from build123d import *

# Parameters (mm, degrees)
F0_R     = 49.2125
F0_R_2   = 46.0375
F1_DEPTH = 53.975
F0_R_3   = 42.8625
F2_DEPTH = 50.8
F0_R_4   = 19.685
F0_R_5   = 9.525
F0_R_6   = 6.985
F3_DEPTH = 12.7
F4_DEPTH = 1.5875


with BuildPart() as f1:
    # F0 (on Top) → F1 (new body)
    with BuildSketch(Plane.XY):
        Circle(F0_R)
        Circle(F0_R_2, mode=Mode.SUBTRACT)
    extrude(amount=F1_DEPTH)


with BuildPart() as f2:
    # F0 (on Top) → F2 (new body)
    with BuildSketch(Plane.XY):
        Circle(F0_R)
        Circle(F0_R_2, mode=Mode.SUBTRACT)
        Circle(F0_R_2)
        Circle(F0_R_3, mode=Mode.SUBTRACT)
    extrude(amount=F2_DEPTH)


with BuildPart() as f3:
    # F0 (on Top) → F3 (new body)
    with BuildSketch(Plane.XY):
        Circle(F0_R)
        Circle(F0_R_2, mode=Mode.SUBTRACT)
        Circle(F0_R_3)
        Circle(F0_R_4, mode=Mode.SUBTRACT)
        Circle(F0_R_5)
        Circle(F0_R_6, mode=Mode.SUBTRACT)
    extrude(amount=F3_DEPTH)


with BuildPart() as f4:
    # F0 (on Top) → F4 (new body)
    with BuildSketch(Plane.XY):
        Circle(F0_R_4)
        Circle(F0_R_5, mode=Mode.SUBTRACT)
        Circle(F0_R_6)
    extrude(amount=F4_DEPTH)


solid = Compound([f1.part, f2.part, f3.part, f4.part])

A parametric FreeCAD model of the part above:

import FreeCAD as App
import Part
import Sketcher
Q = App.Units.Quantity

doc = App.newDocument("Part")
body = doc.addObject("PartDesign::Body", "Body")

sketch1 = body.newObject("Sketcher::SketchObject", "Sketch")
sketch1.AttachmentSupport = (doc.getObject("XY_Plane"), [""])
sketch1.MapMode = "FlatFace"
sketch1.addGeometry([
    Part.Circle(App.Vector(0, 0, 0), App.Vector(0, 0, 1), 49),
    Part.Circle(App.Vector(0, 0, 0), App.Vector(0, 0, 1), 46),
], False)
sketch1.addConstraint([
    Sketcher.Constraint("Coincident", 0, 3, -1, 1),
    Sketcher.Constraint("Coincident", 1, 3, -1, 1),
    Sketcher.Constraint("Diameter", 0, Q("3.875 in")),
    Sketcher.Constraint("Diameter", 1, Q("3.625 in")),
])
pad1 = body.newObject("PartDesign::Pad", "Pad")
pad1.Profile = sketch1
pad1.Length = Q("2.125 in")
body2 = doc.addObject("PartDesign::Body", "Body001")

sketch2 = body2.newObject("Sketcher::SketchObject", "Sketch001")
sketch2.AttachmentSupport = (doc.getObject("XY_Plane001"), [""])
sketch2.MapMode = "FlatFace"
sketch2.addGeometry([
    Part.Circle(App.Vector(0, 0, 0), App.Vector(0, 0, 1), 49),
    Part.Circle(App.Vector(0, 0, 0), App.Vector(0, 0, 1), 43),
], False)
sketch2.addConstraint([
    Sketcher.Constraint("Coincident", 0, 3, -1, 1),
    Sketcher.Constraint("Coincident", 1, 3, -1, 1),
    Sketcher.Constraint("Diameter", 0, Q("3.875 in")),
    Sketcher.Constraint("Diameter", 1, Q("3.375 in")),
])
pad2 = body2.newObject("PartDesign::Pad", "Pad001")
pad2.Profile = sketch2
pad2.Length = Q("2 in")
body3 = doc.addObject("PartDesign::Body", "Body002")
body3.AllowCompound = True

sketch3 = body3.newObject("Sketcher::SketchObject", "Sketch002")
sketch3.AttachmentSupport = (doc.getObject("XY_Plane002"), [""])
sketch3.MapMode = "FlatFace"
sketch3.addGeometry([
    Part.Circle(App.Vector(0, 0, 0), App.Vector(0, 0, 1), 49),
    Part.Circle(App.Vector(0, 0, 0), App.Vector(0, 0, 1), 46),
    Part.Circle(App.Vector(0, 0, 0), App.Vector(0, 0, 1), 43),
    Part.Circle(App.Vector(0, 0, 0), App.Vector(0, 0, 1), 20),
    Part.Circle(App.Vector(0, 0, 0), App.Vector(0, 0, 1), 10),
    Part.Circle(App.Vector(0, 0, 0), App.Vector(0, 0, 1), 7),
], False)
sketch3.addConstraint([
    Sketcher.Constraint("Coincident", 0, 3, -1, 1),
    Sketcher.Constraint("Coincident", 1, 3, -1, 1),
    Sketcher.Constraint("Coincident", 2, 3, -1, 1),
    Sketcher.Constraint("Coincident", 3, 3, -1, 1),
    Sketcher.Constraint("Coincident", 4, 3, -1, 1),
    Sketcher.Constraint("Coincident", 5, 3, -1, 1),
    Sketcher.Constraint("Diameter", 3, Q("1.55 in")),
    Sketcher.Constraint("Diameter", 4, Q("0.75 in")),
    Sketcher.Constraint("Diameter", 5, Q("0.55 in")),
    Sketcher.Constraint("Diameter", 0, Q("3.875 in")),
    Sketcher.Constraint("Diameter", 1, Q("3.625 in")),
    Sketcher.Constraint("Diameter", 2, Q("3.375 in")),
])
pad3 = body3.newObject("PartDesign::Pad", "Pad002")
pad3.Profile = sketch3
pad3.Length = Q("0.5 in")
body4 = doc.addObject("PartDesign::Body", "Body003")
body4.AllowCompound = True

sketch4 = body4.newObject("Sketcher::SketchObject", "Sketch003")
sketch4.AttachmentSupport = (doc.getObject("XY_Plane003"), [""])
sketch4.MapMode = "FlatFace"
sketch4.addGeometry([
    Part.Circle(App.Vector(0, 0, 0), App.Vector(0, 0, 1), 20),
    Part.Circle(App.Vector(0, 0, 0), App.Vector(0, 0, 1), 10),
    Part.Circle(App.Vector(0, 0, 0), App.Vector(0, 0, 1), 7),
], False)
sketch4.addConstraint([
    Sketcher.Constraint("Coincident", 0, 3, -1, 1),
    Sketcher.Constraint("Coincident", 1, 3, -1, 1),
    Sketcher.Constraint("Coincident", 2, 3, -1, 1),
    Sketcher.Constraint("Diameter", 0, Q("1.55 in")),
    Sketcher.Constraint("Diameter", 1, Q("0.75 in")),
    Sketcher.Constraint("Diameter", 2, Q("0.55 in")),
])
pad4 = body4.newObject("PartDesign::Pad", "Pad003")
pad4.Profile = sketch4
pad4.Length = Q("0.0625 in")

doc.recompute()
